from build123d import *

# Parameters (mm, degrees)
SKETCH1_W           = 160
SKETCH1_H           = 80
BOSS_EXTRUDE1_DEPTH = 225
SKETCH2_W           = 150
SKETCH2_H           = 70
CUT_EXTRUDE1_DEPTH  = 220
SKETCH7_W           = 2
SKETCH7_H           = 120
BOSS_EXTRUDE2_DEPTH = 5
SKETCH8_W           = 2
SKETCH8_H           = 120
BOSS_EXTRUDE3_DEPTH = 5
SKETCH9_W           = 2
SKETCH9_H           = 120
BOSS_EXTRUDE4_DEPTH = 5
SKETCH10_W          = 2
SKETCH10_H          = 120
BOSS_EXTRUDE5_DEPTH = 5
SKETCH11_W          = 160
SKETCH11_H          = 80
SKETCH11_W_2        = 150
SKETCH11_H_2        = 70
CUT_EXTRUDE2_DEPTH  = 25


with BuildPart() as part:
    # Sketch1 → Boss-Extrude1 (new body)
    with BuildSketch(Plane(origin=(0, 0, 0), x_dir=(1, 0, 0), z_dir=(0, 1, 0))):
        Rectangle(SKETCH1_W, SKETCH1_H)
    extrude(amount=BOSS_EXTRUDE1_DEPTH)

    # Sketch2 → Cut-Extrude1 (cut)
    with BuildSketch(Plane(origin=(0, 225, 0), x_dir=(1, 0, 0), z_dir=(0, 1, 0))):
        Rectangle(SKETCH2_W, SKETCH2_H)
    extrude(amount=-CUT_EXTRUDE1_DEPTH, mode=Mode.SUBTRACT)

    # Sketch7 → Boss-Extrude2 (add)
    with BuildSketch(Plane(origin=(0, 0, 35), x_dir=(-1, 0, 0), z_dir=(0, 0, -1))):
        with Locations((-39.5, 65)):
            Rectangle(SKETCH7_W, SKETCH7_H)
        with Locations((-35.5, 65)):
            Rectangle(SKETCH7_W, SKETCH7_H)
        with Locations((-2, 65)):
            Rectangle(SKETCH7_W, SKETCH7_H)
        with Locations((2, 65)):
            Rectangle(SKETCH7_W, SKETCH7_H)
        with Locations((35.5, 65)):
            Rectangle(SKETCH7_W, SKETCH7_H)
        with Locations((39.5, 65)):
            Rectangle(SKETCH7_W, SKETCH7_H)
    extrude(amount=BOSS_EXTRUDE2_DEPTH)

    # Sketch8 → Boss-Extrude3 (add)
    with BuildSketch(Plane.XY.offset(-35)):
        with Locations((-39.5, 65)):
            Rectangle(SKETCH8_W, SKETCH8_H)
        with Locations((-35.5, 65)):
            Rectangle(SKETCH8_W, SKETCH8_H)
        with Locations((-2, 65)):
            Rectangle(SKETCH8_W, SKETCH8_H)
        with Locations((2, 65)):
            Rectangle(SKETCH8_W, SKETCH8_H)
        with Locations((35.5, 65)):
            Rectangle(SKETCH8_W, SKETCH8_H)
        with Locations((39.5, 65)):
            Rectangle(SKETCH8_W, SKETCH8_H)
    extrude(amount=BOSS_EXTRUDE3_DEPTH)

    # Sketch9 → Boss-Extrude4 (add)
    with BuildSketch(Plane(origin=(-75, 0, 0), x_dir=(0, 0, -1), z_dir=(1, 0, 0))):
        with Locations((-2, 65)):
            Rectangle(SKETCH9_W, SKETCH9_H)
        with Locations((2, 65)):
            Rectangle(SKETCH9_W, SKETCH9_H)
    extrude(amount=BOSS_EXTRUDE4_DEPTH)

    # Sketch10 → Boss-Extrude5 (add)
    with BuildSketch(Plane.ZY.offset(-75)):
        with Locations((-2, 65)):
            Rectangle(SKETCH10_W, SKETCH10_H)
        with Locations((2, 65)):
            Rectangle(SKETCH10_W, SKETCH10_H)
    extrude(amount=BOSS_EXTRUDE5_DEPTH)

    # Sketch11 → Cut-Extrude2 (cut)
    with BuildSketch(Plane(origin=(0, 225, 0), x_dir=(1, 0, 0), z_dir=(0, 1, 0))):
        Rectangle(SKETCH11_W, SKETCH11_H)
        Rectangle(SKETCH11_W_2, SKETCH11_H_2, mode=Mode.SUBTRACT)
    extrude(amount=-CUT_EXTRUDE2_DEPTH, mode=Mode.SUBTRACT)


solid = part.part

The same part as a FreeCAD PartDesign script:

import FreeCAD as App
import Part
import Sketcher

V = App.Vector


def add_polygon(sketch, points):
    """Adds a closed chain of lines whose ends are joined by coincident constraints."""
    first, n = sketch.GeometryCount, len(points)
    for a, b in zip(points, points[1:] + points[:1]):
        sketch.addGeometry(Part.LineSegment(App.Vector(*a, 0), App.Vector(*b, 0)), False)
    for i in range(n):
        sketch.addConstraint(Sketcher.Constraint("Coincident", first + i, 2, first + (i + 1) % n, 1))

doc = App.newDocument("Part")
body = doc.addObject("PartDesign::Body", "Body")

# Sketch on XZ plane
sketch1 = body.newObject("Sketcher::SketchObject", "Sketch")
sketch1.AttachmentSupport = (doc.getObject("XZ_Plane"), [""])
sketch1.MapMode = "FlatFace"
add_polygon(sketch1, [(-80, -40), (-80, 40), (80, 40), (80, -40)])  # lines 0-3
sketch1.addConstraint([
    Sketcher.Constraint("Vertical", 0),
    Sketcher.Constraint("Horizontal", 1),
    Sketcher.Constraint("Vertical", 2),
    Sketcher.Constraint("Horizontal", 3),
    Sketcher.Constraint("Symmetric", 0, 2, 2, 2, -1, 1),
    Sketcher.Constraint("DistanceX", 1, 1, 1, 2, 160.0),
    Sketcher.Constraint("DistanceY", 0, 1, 0, 2, 80.0),
])
pad1 = body.newObject("PartDesign::Pad", "Pad")
pad1.Profile = sketch1
pad1.Length = 225
pad1.Reversed = True

# Sketch on XZ plane
sketch2 = body.newObject("Sketcher::SketchObject", "Sketch001")
sketch2.AttachmentSupport = (doc.getObject("XZ_Plane"), [""])
sketch2.MapMode = "FlatFace"
sketch2.AttachmentOffset = App.Placement(V(0, 0, -225), App.Rotation())
add_polygon(sketch2, [(-75, -35), (-75, 35), (75, 35), (75, -35)])  # lines 0-3
sketch2.addConstraint([
    Sketcher.Constraint("Vertical", 0),
    Sketcher.Constraint("Horizontal", 1),
    Sketcher.Constraint("Vertical", 2),
    Sketcher.Constraint("Horizontal", 3),
    Sketcher.Constraint("Symmetric", 0, 2, 2, 2, -1, 1),
    Sketcher.Constraint("DistanceX", 1, 1, 1, 2, 150.0),
    Sketcher.Constraint("DistanceY", 0, 1, 0, 2, 70.0),
])
pocket1 = body.newObject("PartDesign::Pocket", "Pocket")
pocket1.Profile = sketch2
pocket1.Length = 220
pocket1.Reversed = True

# Sketch on XY plane
sketch3 = body.newObject("Sketcher::SketchObject", "Sketch002")
sketch3.AttachmentSupport = (doc.getObject("XY_Plane"), [""])
sketch3.MapMode = "FlatFace"
sketch3.AttachmentOffset = App.Placement(V(0, 0, 35), App.Rotation())
add_polygon(sketch3, [(40.5, 125), (40.5, 5), (38.5, 5), (38.5, 125)])  # lines 0-3
add_polygon(sketch3, [(36.5, 125), (36.5, 5), (34.5, 5), (34.5, 125)])  # lines 4-7
add_polygon(sketch3, [(3, 125), (3, 5), (1, 5), (1, 125)])  # lines 8-11
add_polygon(sketch3, [(-1, 125), (-1, 5), (-3, 5), (-3, 125)])  # lines 12-15
add_polygon(sketch3, [(-34.5, 125), (-34.5, 5), (-36.5, 5), (-36.5, 125)])  # lines 16-19
add_polygon(sketch3, [(-38.5, 125), (-38.5, 5), (-40.5, 5), (-40.5, 125)])  # lines 20-23
sketch3.addConstraint([
    Sketcher.Constraint("Vertical", 0),
    Sketcher.Constraint("Horizontal", 1),
    Sketcher.Constraint("Vertical", 2),
    Sketcher.Constraint("Horizontal", 3),
    Sketcher.Constraint("Vertical", 4),
    Sketcher.Constraint("Horizontal", 5),
    Sketcher.Constraint("Vertical", 6),
    Sketcher.Constraint("Horizontal", 7),
    Sketcher.Constraint("Vertical", 8),
    Sketcher.Constraint("Horizontal", 9),
    Sketcher.Constraint("Vertical", 10),
    Sketcher.Constraint("Horizontal", 11),
    Sketcher.Constraint("Vertical", 12),
    Sketcher.Constraint("Horizontal", 13),
    Sketcher.Constraint("Vertical", 14),
    Sketcher.Constraint("Horizontal", 15),
    Sketcher.Constraint("Vertical", 16),
    Sketcher.Constraint("Horizontal", 17),
    Sketcher.Constraint("Vertical", 18),
    Sketcher.Constraint("Horizontal", 19),
    Sketcher.Constraint("Vertical", 20),
    Sketcher.Constraint("Horizontal", 21),
    Sketcher.Constraint("Vertical", 22),
    Sketcher.Constraint("Horizontal", 23),
    Sketcher.Constraint("Symmetric", 9, 2, 12, 2, -2),
    Sketcher.Constraint("Symmetric", 11, 2, 14, 2, -2),
    Sketcher.Constraint("Symmetric", 5, 2, 16, 2, -2),
    Sketcher.Constraint("Symmetric", 7, 2, 18, 2, -2),
    Sketcher.Constraint("Symmetric", 1, 2, 20, 2, -2),
    Sketcher.Constraint("Symmetric", 3, 2, 22, 2, -2),
    Sketcher.Constraint("Horizontal", 1, 2, 4, 2),
    Sketcher.Constraint("Horizontal", 3, 2, 6, 2),
    Sketcher.Constraint("Horizontal", 5, 2, 8, 2),
    Sketcher.Constraint("Horizontal", 7, 2, 10, 2),
    Sketcher.Constraint("Equal", 3, 5),
    Sketcher.Constraint("Equal", 7, 9),
    Sketcher.Constraint("DistanceX", 1, 2, 1, 1, 2.0),
    Sketcher.Constraint("DistanceY", 0, 2, 0, 1, 120.0),
    Sketcher.Constraint("DistanceY", -1, 1, 0, 2, 5.0),
    Sketcher.Constraint("DistanceX", -1, 1, 8, 2, 3.0),
    Sketcher.Constraint("DistanceX", 4, 2, 1, 2, 2.0),
    Sketcher.Constraint("DistanceX", 16, 2, 5, 2, 69.0),
])
pad2 = body.newObject("PartDesign::Pad", "Pad001")
pad2.Profile = sketch3
pad2.Length = 5
pad2.Reversed = True

# Sketch on XY plane
sketch4 = body.newObject("Sketcher::SketchObject", "Sketch003")
sketch4.AttachmentSupport = (doc.getObject("XY_Plane"), [""])
sketch4.MapMode = "FlatFace"
sketch4.AttachmentOffset = App.Placement(V(0, 0, -35), App.Rotation())
add_polygon(sketch4, [(-40.5, 125), (-40.5, 5), (-38.5, 5), (-38.5, 125)])  # lines 0-3
add_polygon(sketch4, [(-36.5, 125), (-36.5, 5), (-34.5, 5), (-34.5, 125)])  # lines 4-7
add_polygon(sketch4, [(-3, 125), (-3, 5), (-1, 5), (-1, 125)])  # lines 8-11
add_polygon(sketch4, [(1, 125), (1, 5), (3, 5), (3, 125)])  # lines 12-15
add_polygon(sketch4, [(34.5, 125), (34.5, 5), (36.5, 5), (36.5, 125)])  # lines 16-19
add_polygon(sketch4, [(38.5, 125), (38.5, 5), (40.5, 5), (40.5, 125)])  # lines 20-23
sketch4.addConstraint([
    Sketcher.Constraint("Vertical", 0),
    Sketcher.Constraint("Horizontal", 1),
    Sketcher.Constraint("Vertical", 2),
    Sketcher.Constraint("Horizontal", 3),
    Sketcher.Constraint("Vertical", 4),
    Sketcher.Constraint("Horizontal", 5),
    Sketcher.Constraint("Vertical", 6),
    Sketcher.Constraint("Horizontal", 7),
    Sketcher.Constraint("Vertical", 8),
    Sketcher.Constraint("Horizontal", 9),
    Sketcher.Constraint("Vertical", 10),
    Sketcher.Constraint("Horizontal", 11),
    Sketcher.Constraint("Vertical", 12),
    Sketcher.Constraint("Horizontal", 13),
    Sketcher.Constraint("Vertical", 14),
    Sketcher.Constraint("Horizontal", 15),
    Sketcher.Constraint("Vertical", 16),
    Sketcher.Constraint("Horizontal", 17),
    Sketcher.Constraint("Vertical", 18),
    Sketcher.Constraint("Horizontal", 19),
    Sketcher.Constraint("Vertical", 20),
    Sketcher.Constraint("Horizontal", 21),
    Sketcher.Constraint("Vertical", 22),
    Sketcher.Constraint("Horizontal", 23),
    Sketcher.Constraint("Symmetric", 9, 2, 12, 2, -2),
    Sketcher.Constraint("Symmetric", 11, 2, 14, 2, -2),
    Sketcher.Constraint("Symmetric", 5, 2, 16, 2, -2),
    Sketcher.Constraint("Symmetric", 7, 2, 18, 2, -2),
    Sketcher.Constraint("Symmetric", 1, 2, 20, 2, -2),
    Sketcher.Constraint("Symmetric", 3, 2, 22, 2, -2),
    Sketcher.Constraint("Horizontal", 1, 2, 4, 2),
    Sketcher.Constraint("Horizontal", 3, 2, 6, 2),
    Sketcher.Constraint("Horizontal", 5, 2, 8, 2),
    Sketcher.Constraint("Horizontal", 7, 2, 10, 2),
    Sketcher.Constraint("Equal", 3, 5),
    Sketcher.Constraint("Equal", 7, 9),
    Sketcher.Constraint("DistanceX", 1, 1, 1, 2, 2.0),
    Sketcher.Constraint("DistanceY", 0, 2, 0, 1, 120.0),
    Sketcher.Constraint("DistanceY", -1, 1, 0, 2, 5.0),
    Sketcher.Constraint("DistanceX", 8, 2, -1, 1, 3.0),
    Sketcher.Constraint("DistanceX", 1, 2, 4, 2, 2.0),
    Sketcher.Constraint("DistanceX", 5, 2, 16, 2, 69.0),
])
pad3 = body.newObject("PartDesign::Pad", "Pad002")
pad3.Profile = sketch4
pad3.Length = 5

# Sketch on YZ plane
sketch5 = body.newObject("Sketcher::SketchObject", "Sketch004")
sketch5.AttachmentSupport = (doc.getObject("YZ_Plane"), [""])
sketch5.MapMode = "FlatFace"
sketch5.AttachmentOffset = App.Placement(V(0, 0, -75), App.Rotation())
add_polygon(sketch5, [(125, 3), (5, 3), (5, 1), (125, 1)])  # lines 0-3
add_polygon(sketch5, [(125, -1), (5, -1), (5, -3), (125, -3)])  # lines 4-7
sketch5.addConstraint([
    Sketcher.Constraint("Horizontal", 0),
    Sketcher.Constraint("Vertical", 1),
    Sketcher.Constraint("Horizontal", 2),
    Sketcher.Constraint("Vertical", 3),
    Sketcher.Constraint("Horizontal", 4),
    Sketcher.Constraint("Vertical", 5),
    Sketcher.Constraint("Horizontal", 6),
    Sketcher.Constraint("Vertical", 7),
    Sketcher.Constraint("Symmetric", 1, 2, 4, 2, -1),
    Sketcher.Constraint("Symmetric", 3, 2, 6, 2, -1),
    Sketcher.Constraint("DistanceX", 0, 2, 0, 1, 120.0),
    Sketcher.Constraint("DistanceY", 1, 2, 1, 1, 2.0),
    Sketcher.Constraint("DistanceX", -1, 1, 0, 2, 5.0),
    Sketcher.Constraint("DistanceY", -1, 1, 0, 2, 3.0),
])
pad4 = body.newObject("PartDesign::Pad", "Pad003")
pad4.Profile = sketch5
pad4.Length = 5

# Sketch on YZ plane
sketch6 = body.newObject("Sketcher::SketchObject", "Sketch005")
sketch6.AttachmentSupport = (doc.getObject("YZ_Plane"), [""])
sketch6.MapMode = "FlatFace"
sketch6.AttachmentOffset = App.Placement(V(0, 0, 75), App.Rotation())
add_polygon(sketch6, [(125, -3), (5, -3), (5, -1), (125, -1)])  # lines 0-3
add_polygon(sketch6, [(125, 1), (5, 1), (5, 3), (125, 3)])  # lines 4-7
sketch6.addConstraint([
    Sketcher.Constraint("Horizontal", 0),
    Sketcher.Constraint("Vertical", 1),
    Sketcher.Constraint("Horizontal", 2),
    Sketcher.Constraint("Vertical", 3),
    Sketcher.Constraint("Horizontal", 4),
    Sketcher.Constraint("Vertical", 5),
    Sketcher.Constraint("Horizontal", 6),
    Sketcher.Constraint("Vertical", 7),
    Sketcher.Constraint("Symmetric", 1, 2, 4, 2, -1),
    Sketcher.Constraint("Symmetric", 3, 2, 6, 2, -1),
    Sketcher.Constraint("DistanceX", 0, 2, 0, 1, 120.0),
    Sketcher.Constraint("DistanceY", 1, 1, 1, 2, 2.0),
    Sketcher.Constraint("DistanceX", -1, 1, 0, 2, 5.0),
    Sketcher.Constraint("DistanceY", 0, 2, -1, 1, 3.0),
])
pad5 = body.newObject("PartDesign::Pad", "Pad004")
pad5.Profile = sketch6
pad5.Length = 5
pad5.Reversed = True

# Sketch on XZ plane
sketch7 = body.newObject("Sketcher::SketchObject", "Sketch006")
sketch7.AttachmentSupport = (doc.getObject("XZ_Plane"), [""])
sketch7.MapMode = "FlatFace"
sketch7.AttachmentOffset = App.Placement(V(0, 0, -225), App.Rotation())
add_polygon(sketch7, [(-80, -40), (-80, 40), (80, 40), (80, -40)])  # lines 0-3
add_polygon(sketch7, [(75, 35), (-75, 35), (-75, -35), (75, -35)])  # lines 4-7
sketch7.addConstraint([
    Sketcher.Constraint("Vertical", 0),
    Sketcher.Constraint("Horizontal", 1),
    Sketcher.Constraint("Vertical", 2),
    Sketcher.Constraint("Horizontal", 3),
    Sketcher.Constraint("Horizontal", 4),
    Sketcher.Constraint("Vertical", 5),
    Sketcher.Constraint("Horizontal", 6),
    Sketcher.Constraint("Vertical", 7),
    Sketcher.Constraint("Symmetric", 0, 2, 2, 2, -1, 1),
    Sketcher.Constraint("Symmetric", 4, 2, 6, 2, -1, 1),
    Sketcher.Constraint("DistanceX", 1, 1, 1, 2, 160.0),
    Sketcher.Constraint("DistanceX", 4, 2, 4, 1, 150.0),
    Sketcher.Constraint("DistanceY", 0, 1, 0, 2, 80.0),
    Sketcher.Constraint("DistanceY", 5, 2, 5, 1, 70.0),
])
pocket2 = body.newObject("PartDesign::Pocket", "Pocket001")
pocket2.Profile = sketch7
pocket2.Length = 25
pocket2.Reversed = True

doc.recompute()
